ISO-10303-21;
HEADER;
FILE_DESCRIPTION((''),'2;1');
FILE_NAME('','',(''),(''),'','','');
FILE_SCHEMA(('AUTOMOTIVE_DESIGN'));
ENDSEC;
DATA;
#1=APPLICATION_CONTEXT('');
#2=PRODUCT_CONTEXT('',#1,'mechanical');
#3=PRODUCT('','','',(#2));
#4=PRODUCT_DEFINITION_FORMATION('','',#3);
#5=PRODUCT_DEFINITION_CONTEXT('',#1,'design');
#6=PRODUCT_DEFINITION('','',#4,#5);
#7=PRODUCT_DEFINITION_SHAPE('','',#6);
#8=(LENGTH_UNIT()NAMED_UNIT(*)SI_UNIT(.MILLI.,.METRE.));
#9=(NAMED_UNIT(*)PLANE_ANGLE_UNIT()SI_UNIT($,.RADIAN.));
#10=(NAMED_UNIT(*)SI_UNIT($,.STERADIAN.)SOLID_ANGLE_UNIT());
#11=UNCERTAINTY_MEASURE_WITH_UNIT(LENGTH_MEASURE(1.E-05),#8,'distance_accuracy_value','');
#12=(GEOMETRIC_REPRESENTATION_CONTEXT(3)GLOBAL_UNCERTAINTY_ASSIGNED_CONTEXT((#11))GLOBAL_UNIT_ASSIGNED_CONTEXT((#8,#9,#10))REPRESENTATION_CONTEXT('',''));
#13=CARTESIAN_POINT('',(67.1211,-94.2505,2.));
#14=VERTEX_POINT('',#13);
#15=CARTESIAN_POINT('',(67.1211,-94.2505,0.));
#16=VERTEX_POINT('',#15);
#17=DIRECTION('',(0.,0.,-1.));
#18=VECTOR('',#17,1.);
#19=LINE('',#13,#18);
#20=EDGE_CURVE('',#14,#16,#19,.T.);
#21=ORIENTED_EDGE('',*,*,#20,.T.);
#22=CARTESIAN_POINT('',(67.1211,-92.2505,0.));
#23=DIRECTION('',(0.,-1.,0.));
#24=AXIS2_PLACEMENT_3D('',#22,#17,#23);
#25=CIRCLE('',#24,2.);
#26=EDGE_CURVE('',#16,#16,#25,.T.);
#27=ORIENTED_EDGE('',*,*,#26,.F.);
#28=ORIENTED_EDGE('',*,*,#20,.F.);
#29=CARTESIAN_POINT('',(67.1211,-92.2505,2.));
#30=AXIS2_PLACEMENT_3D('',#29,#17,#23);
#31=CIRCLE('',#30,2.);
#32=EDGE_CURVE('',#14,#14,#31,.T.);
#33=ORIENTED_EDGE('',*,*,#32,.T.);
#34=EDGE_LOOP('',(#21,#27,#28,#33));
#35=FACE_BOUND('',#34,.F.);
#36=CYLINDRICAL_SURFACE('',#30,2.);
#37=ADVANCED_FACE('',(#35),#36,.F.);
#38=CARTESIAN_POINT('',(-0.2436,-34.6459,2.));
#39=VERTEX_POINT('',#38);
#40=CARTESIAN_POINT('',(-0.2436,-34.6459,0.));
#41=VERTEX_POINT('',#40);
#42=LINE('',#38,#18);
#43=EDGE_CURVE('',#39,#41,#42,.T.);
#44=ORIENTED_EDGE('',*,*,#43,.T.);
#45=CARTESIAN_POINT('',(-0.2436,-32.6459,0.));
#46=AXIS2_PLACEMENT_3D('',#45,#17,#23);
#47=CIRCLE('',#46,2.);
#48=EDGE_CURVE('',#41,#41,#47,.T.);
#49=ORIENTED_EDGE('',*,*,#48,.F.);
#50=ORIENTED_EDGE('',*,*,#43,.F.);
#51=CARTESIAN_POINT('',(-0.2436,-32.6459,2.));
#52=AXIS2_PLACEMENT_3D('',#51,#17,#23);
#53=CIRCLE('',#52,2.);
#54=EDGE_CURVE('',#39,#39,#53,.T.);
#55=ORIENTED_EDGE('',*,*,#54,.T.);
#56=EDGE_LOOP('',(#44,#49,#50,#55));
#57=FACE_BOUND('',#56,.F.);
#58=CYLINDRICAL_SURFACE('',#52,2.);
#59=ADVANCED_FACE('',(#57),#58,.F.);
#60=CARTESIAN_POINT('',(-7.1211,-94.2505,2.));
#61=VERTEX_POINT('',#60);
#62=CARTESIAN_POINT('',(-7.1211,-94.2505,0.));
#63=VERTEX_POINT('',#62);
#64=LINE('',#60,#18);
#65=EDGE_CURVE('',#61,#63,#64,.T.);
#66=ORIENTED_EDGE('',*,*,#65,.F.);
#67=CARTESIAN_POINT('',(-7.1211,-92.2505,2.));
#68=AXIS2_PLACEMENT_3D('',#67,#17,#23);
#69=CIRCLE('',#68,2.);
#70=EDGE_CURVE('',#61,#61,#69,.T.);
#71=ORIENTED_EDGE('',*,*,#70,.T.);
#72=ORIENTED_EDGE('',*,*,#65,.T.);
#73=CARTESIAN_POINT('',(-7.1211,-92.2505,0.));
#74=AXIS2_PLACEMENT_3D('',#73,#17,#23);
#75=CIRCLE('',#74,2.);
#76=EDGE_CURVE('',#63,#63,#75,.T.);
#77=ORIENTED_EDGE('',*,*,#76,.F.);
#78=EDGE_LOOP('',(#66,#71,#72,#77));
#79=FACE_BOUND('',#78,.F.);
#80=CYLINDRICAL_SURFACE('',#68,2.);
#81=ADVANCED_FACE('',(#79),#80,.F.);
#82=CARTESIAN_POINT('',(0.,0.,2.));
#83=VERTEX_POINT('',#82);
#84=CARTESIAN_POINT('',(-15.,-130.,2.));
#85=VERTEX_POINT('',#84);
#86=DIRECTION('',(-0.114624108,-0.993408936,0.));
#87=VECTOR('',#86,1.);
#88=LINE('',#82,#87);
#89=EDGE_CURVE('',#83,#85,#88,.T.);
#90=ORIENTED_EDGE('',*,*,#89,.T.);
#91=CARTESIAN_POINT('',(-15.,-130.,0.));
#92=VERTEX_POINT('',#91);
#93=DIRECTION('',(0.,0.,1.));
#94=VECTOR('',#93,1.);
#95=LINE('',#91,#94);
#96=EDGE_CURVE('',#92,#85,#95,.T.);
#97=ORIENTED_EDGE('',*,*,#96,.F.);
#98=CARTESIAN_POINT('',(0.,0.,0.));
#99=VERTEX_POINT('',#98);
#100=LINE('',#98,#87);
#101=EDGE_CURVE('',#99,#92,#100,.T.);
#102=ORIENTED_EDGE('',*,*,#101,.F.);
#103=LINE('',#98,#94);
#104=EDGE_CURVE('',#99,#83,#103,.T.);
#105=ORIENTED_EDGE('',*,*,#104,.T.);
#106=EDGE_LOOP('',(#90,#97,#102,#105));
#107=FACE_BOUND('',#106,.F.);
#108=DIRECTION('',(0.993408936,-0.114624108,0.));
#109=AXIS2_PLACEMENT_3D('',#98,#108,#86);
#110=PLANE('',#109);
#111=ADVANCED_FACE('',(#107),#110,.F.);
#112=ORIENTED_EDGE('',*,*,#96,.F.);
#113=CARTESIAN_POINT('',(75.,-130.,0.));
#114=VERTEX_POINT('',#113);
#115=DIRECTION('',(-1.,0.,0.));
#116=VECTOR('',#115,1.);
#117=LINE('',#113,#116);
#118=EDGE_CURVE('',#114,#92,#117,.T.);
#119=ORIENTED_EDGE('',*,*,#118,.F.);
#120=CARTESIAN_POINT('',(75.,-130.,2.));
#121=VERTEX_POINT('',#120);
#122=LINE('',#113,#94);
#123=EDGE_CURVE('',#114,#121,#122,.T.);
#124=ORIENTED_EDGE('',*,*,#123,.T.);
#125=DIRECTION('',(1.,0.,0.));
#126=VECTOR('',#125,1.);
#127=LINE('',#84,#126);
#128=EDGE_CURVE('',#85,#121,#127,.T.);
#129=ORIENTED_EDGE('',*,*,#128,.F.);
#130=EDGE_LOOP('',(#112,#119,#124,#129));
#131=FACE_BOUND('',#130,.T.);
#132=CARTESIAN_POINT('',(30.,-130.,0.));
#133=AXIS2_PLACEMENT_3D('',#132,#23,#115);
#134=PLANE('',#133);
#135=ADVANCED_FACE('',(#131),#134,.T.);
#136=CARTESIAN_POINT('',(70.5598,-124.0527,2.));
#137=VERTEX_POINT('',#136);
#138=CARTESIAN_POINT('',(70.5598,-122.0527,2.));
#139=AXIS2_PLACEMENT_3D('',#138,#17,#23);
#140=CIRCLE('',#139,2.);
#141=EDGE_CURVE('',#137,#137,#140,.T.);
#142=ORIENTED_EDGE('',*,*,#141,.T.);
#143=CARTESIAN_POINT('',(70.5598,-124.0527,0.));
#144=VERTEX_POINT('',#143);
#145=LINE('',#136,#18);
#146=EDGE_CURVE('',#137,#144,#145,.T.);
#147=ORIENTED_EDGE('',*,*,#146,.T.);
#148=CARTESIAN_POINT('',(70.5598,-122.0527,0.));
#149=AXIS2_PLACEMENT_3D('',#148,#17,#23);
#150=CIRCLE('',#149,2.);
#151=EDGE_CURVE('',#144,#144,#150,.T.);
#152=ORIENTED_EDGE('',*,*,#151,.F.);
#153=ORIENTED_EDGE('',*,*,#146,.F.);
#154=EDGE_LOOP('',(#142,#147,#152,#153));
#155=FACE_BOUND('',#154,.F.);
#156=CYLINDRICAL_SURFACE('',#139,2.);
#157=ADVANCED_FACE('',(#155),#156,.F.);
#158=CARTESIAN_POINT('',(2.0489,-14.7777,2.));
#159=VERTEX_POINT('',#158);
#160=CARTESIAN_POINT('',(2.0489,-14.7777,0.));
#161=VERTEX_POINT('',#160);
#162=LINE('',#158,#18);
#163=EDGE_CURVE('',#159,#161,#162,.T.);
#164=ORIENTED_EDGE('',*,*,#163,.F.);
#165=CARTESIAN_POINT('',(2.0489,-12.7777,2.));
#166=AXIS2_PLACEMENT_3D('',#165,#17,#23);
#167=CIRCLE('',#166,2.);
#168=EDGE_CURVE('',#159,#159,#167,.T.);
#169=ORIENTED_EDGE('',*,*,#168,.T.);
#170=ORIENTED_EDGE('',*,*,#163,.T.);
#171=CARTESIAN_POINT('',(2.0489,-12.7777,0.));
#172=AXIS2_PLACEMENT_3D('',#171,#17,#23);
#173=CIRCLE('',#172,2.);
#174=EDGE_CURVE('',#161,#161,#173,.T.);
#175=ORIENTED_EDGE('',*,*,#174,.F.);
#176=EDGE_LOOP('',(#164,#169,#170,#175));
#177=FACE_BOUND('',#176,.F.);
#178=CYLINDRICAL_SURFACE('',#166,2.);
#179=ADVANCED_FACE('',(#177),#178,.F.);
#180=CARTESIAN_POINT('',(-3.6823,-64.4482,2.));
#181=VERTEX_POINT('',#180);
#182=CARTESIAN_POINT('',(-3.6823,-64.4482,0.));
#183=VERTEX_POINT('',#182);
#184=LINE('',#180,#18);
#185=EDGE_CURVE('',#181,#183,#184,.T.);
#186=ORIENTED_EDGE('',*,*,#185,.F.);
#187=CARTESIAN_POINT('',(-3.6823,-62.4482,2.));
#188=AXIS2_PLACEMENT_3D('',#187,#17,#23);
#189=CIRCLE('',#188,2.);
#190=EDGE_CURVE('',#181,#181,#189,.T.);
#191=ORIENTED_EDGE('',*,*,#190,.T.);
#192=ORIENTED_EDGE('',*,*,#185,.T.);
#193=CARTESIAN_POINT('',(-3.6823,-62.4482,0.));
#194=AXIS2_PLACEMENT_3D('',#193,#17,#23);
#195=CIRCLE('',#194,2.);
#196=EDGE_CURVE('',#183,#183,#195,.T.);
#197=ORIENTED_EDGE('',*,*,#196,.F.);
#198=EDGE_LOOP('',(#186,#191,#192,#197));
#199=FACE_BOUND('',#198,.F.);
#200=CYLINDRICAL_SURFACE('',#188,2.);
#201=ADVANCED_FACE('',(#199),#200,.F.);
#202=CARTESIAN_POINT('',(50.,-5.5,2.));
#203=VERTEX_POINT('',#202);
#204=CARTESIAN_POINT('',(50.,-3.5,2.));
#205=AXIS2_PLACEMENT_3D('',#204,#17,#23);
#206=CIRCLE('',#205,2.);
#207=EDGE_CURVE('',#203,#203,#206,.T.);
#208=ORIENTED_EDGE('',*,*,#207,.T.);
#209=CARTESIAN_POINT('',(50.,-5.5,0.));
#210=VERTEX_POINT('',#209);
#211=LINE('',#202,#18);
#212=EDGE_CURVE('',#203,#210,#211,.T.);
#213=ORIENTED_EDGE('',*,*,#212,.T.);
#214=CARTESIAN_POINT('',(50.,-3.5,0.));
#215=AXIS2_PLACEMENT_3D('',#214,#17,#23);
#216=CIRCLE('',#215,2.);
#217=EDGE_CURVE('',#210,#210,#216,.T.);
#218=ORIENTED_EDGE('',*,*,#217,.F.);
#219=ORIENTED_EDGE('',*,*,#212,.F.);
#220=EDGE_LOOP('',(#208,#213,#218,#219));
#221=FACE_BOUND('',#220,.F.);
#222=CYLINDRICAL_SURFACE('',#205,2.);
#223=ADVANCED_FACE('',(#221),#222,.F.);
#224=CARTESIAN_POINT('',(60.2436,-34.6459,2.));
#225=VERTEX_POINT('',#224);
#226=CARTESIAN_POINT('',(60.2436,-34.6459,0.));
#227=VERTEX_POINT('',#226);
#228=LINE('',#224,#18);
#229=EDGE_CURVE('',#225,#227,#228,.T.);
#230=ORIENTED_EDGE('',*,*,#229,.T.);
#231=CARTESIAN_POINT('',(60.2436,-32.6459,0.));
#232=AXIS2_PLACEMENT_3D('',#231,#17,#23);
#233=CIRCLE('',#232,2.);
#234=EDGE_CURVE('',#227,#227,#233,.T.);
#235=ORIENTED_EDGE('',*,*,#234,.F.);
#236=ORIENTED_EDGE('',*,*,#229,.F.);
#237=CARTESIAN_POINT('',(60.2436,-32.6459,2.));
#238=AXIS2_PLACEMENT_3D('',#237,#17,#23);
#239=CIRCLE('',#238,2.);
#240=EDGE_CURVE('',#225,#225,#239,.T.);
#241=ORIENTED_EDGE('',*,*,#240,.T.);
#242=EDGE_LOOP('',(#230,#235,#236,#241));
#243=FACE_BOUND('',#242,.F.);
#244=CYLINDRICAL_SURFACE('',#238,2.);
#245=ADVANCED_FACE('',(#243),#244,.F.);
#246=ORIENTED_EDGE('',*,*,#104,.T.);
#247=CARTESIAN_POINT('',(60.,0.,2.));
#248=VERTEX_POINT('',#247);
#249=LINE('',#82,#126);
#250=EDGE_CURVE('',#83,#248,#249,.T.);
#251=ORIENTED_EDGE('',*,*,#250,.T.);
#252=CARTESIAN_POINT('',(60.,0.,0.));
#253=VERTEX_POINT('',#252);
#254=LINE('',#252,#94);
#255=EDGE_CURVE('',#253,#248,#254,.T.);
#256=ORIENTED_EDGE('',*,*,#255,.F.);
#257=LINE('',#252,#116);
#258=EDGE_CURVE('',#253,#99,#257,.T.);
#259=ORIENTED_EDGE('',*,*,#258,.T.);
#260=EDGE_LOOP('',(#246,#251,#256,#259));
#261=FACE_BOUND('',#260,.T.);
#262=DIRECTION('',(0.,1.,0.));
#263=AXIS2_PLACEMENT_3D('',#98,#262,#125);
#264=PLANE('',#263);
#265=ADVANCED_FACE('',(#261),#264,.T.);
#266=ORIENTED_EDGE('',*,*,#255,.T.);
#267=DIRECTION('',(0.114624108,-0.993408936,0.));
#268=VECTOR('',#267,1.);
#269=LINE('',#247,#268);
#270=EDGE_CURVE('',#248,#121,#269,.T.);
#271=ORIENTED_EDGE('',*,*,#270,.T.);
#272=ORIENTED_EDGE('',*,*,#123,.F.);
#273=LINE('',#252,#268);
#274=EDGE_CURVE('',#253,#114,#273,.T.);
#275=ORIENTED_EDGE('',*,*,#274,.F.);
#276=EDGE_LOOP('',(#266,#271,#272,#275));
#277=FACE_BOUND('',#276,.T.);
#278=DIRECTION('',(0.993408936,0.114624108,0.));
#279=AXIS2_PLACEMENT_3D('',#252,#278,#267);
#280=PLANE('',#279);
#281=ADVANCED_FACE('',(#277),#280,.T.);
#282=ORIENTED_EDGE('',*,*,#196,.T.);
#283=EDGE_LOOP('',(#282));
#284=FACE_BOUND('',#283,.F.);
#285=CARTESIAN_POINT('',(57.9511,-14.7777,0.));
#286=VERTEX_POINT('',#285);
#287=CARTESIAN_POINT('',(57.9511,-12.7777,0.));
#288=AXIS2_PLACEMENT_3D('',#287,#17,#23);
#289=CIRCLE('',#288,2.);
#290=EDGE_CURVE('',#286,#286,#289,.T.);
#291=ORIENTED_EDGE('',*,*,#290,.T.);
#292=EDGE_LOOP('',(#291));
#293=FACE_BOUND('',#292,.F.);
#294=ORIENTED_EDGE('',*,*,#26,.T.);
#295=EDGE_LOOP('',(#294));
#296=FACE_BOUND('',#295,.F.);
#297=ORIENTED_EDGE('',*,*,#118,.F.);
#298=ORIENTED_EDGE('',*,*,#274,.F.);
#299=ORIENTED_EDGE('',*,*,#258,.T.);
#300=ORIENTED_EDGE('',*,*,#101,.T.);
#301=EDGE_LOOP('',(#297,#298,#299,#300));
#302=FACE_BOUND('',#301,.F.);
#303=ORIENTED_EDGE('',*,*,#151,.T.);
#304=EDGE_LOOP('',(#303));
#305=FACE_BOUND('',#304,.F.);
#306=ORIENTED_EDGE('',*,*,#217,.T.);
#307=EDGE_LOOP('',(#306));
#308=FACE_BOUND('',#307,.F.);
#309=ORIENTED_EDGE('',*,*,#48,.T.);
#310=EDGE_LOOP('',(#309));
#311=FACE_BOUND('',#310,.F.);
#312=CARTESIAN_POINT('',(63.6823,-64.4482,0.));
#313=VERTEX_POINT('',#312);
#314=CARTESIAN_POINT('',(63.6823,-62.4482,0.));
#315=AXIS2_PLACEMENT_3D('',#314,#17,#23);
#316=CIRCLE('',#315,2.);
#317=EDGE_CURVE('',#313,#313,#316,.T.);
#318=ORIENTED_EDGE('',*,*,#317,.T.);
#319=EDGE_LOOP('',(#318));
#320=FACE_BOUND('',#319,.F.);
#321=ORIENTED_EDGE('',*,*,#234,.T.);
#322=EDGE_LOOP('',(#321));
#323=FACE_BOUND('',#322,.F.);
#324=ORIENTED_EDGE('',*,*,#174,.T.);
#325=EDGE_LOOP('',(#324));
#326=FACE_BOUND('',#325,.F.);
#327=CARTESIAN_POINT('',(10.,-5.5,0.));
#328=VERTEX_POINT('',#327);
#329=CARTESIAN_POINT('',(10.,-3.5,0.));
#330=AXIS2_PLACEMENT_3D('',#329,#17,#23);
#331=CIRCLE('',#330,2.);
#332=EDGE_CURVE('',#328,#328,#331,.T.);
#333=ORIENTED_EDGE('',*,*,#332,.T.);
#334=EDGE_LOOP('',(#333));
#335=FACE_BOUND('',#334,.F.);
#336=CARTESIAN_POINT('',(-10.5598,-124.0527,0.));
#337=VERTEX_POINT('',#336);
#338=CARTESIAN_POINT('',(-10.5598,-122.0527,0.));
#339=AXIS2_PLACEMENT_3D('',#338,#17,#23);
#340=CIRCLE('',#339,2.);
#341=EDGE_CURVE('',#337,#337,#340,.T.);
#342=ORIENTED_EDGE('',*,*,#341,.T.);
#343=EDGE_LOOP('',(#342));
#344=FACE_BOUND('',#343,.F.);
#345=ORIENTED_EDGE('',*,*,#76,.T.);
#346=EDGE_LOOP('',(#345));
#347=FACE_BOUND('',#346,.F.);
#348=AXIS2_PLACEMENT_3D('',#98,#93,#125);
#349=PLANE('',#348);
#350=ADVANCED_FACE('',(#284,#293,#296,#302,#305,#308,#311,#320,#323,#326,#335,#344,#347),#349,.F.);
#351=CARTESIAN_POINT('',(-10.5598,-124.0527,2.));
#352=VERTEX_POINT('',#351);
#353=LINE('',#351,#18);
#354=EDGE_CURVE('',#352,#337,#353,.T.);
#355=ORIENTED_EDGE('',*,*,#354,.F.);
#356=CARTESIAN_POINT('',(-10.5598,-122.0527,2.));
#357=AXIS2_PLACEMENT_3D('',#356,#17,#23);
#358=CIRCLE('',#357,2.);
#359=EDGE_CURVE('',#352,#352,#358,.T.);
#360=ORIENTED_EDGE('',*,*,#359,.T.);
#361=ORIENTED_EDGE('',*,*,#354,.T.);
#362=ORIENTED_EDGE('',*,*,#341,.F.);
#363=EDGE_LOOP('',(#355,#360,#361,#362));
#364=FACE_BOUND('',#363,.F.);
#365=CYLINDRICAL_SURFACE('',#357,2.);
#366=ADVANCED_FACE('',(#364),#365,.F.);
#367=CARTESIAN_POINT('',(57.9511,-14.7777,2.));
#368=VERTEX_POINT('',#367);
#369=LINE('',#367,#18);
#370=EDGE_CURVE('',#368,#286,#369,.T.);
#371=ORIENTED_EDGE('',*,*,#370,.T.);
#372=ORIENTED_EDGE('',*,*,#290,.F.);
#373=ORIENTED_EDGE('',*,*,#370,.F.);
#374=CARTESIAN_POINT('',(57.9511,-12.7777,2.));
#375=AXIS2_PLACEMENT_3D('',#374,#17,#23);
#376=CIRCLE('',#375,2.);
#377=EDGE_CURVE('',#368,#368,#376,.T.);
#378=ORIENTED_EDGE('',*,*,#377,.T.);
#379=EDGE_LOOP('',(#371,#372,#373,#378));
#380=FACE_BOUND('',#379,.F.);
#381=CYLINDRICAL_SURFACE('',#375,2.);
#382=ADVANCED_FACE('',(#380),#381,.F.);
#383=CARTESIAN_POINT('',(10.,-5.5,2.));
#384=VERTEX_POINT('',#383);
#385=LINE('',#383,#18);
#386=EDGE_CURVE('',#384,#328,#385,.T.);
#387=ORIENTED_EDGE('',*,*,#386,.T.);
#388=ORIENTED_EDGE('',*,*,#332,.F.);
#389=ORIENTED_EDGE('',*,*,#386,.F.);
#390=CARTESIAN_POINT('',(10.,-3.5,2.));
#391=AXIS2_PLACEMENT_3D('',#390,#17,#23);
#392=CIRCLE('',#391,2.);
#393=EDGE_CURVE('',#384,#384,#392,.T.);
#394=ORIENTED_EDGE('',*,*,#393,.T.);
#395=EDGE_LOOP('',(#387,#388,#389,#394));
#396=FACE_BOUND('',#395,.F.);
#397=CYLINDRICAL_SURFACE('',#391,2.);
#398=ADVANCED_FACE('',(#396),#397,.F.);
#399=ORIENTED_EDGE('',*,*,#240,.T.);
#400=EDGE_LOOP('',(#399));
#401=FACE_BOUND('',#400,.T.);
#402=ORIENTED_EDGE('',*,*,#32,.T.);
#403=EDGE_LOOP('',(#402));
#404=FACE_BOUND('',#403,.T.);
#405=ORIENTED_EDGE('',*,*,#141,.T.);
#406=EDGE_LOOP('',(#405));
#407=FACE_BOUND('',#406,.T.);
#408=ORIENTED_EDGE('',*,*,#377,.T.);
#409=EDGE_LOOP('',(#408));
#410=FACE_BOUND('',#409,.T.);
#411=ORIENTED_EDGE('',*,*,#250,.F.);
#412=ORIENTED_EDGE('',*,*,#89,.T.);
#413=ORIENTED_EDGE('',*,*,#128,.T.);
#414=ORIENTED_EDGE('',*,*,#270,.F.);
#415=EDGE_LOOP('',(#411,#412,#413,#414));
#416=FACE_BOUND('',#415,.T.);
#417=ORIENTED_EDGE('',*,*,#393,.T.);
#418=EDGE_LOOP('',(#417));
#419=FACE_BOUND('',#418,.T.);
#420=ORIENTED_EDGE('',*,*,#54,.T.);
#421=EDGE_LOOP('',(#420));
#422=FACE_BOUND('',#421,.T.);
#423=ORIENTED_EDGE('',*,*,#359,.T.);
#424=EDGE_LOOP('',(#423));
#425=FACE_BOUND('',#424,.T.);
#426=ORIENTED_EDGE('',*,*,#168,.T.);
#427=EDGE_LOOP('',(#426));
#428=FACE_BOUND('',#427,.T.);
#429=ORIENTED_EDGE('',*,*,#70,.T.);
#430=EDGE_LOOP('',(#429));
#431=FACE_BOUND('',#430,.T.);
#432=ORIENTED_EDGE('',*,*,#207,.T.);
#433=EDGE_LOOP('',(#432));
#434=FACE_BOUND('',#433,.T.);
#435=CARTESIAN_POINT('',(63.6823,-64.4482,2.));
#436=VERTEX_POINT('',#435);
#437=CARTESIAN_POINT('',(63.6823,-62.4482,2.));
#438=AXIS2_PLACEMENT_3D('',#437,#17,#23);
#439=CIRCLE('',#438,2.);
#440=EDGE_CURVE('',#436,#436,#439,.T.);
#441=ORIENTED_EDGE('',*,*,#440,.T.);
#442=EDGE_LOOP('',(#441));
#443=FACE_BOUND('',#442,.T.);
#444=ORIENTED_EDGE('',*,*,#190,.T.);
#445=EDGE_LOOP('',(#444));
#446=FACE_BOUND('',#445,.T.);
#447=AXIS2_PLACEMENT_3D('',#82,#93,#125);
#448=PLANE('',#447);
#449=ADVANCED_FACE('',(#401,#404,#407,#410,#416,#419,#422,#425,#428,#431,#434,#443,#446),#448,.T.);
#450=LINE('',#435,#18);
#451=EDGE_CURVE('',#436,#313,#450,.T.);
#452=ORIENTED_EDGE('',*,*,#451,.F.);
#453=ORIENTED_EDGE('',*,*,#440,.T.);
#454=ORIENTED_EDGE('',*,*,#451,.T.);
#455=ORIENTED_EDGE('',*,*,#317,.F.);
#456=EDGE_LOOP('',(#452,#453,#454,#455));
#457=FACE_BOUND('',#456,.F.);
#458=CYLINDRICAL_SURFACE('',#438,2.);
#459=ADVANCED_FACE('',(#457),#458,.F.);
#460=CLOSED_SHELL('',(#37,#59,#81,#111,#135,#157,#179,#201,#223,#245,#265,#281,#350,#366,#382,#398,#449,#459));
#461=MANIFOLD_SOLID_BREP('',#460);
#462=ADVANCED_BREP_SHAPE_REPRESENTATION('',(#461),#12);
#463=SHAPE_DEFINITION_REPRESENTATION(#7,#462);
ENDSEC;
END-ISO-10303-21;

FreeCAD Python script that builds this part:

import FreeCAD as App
import Part
import Sketcher
Q = App.Units.Quantity

doc = App.newDocument("Part")
body = doc.addObject("PartDesign::Body", "Body")

# Sketch on XY plane
sketch1 = body.newObject("Sketcher::SketchObject", "Sketch")
sketch1.AttachmentSupport = (doc.getObject("XY_Plane"), [""])
sketch1.MapMode = "FlatFace"
sketch1.addGeometry([
    Part.LineSegment(App.Vector(0, 0, 0), App.Vector(-15, -130, 0)),
    Part.LineSegment(App.Vector(-15, -130, 0), App.Vector(75, -130, 0)),
    Part.LineSegment(App.Vector(75, -130, 0), App.Vector(60, 0, 0)),
    Part.LineSegment(App.Vector(60, 0, 0), App.Vector(0, 0, 0)),
], False)
sketch1.addConstraint([
    Sketcher.Constraint("Coincident", 0, 2, 1, 1),
    Sketcher.Constraint("Coincident", 1, 2, 2, 1),
    Sketcher.Constraint("Coincident", 2, 2, 3, 1),
    Sketcher.Constraint("Coincident", 3, 2, 0, 1),
    Sketcher.Constraint("Horizontal", 1),
    Sketcher.Constraint("Horizontal", 3),
    Sketcher.Constraint("Coincident", 3, 2, -1, 1),
    Sketcher.Constraint("Equal", 0, 2),
    Sketcher.Constraint("DistanceX", 3, 2, 3, 1, Q("60 mm")),
    Sketcher.Constraint("DistanceY", 0, 2, -1, 1, Q("130 mm")),
    Sketcher.Constraint("DistanceX", 1, 1, 1, 2, Q("90 mm")),
])
pad1 = body.newObject("PartDesign::Pad", "Pad")
pad1.Profile = sketch1
pad1.Length = 2

# Sketch on XY plane
sketch2 = body.newObject("Sketcher::SketchObject", "Sketch001")
sketch2.AttachmentSupport = (doc.getObject("XY_Plane"), [""])
sketch2.MapMode = "FlatFace"
sketch2.AttachmentOffset = App.Placement(App.Vector(0, 0, 2), App.Rotation())
sketch2.addGeometry([
    Part.Circle(App.Vector(10, -3.5, 0), App.Vector(0, 0, 1), 2),  # 0
    Part.Circle(App.Vector(2, -12.8, 0), App.Vector(0, 0, 1), 2),  # 1
    Part.Circle(App.Vector(-0.2, -32.6, 0), App.Vector(0, 0, 1), 2),  # 2
    Part.Circle(App.Vector(-3.7, -62.4, 0), App.Vector(0, 0, 1), 2),  # 3
    Part.Circle(App.Vector(-7.1, -92.3, 0), App.Vector(0, 0, 1), 2),  # 4
    Part.Circle(App.Vector(-10.6, -122.1, 0), App.Vector(0, 0, 1), 2),  # 5
    Part.Circle(App.Vector(50, -3.5, 0), App.Vector(0, 0, 1), 2),  # 6
    Part.Circle(App.Vector(58, -12.8, 0), App.Vector(0, 0, 1), 2),  # 7
    Part.Circle(App.Vector(63.7, -62.4, 0), App.Vector(0, 0, 1), 2),  # 8
    Part.Circle(App.Vector(67.1, -92.3, 0), App.Vector(0, 0, 1), 2),  # 9
    Part.Circle(App.Vector(70.6, -122.1, 0), App.Vector(0, 0, 1), 2),  # 10
    Part.Circle(App.Vector(60.2, -32.6, 0), App.Vector(0, 0, 1), 2),  # 11
], False)
sketch2.addConstraint([
    Sketcher.Constraint("Equal", 0, 1),
    Sketcher.Constraint("Equal", 1, 2),
    Sketcher.Constraint("Equal", 2, 3),
    Sketcher.Constraint("Equal", 3, 4),
    Sketcher.Constraint("Equal", 4, 5),
    Sketcher.Constraint("Equal", 5, 6),
    Sketcher.Constraint("Equal", 6, 7),
    Sketcher.Constraint("Equal", 7, 8),
    Sketcher.Constraint("Equal", 8, 9),
    Sketcher.Constraint("Equal", 9, 10),
    Sketcher.Constraint("Equal", 10, 11),
    Sketcher.Constraint("Horizontal", 0, 3, 6, 3),
    Sketcher.Constraint("Horizontal", 1, 3, 7, 3),
    Sketcher.Constraint("Horizontal", 3, 3, 8, 3),
    Sketcher.Constraint("Horizontal", 4, 3, 9, 3),
    Sketcher.Constraint("Horizontal", 5, 3, 10, 3),
    Sketcher.Constraint("Horizontal", 2, 3, 11, 3),
    Sketcher.Constraint("Diameter", 0, Q("4 mm")),
    Sketcher.Constraint("DistanceX", -1, 1, 0, 3, Q("10 mm")),
    Sketcher.Constraint("DistanceX", -1, 1, 6, 3, Q("50 mm")),
    Sketcher.Constraint("DistanceY", 0, 3, -1, 1, Q("3.5 mm")),
    Sketcher.Constraint("DistanceX", 4, 3, 1, 3, Q("9.17 mm")),
    Sketcher.Constraint("DistanceX", 7, 3, 9, 3, Q("9.17 mm")),
    Sketcher.Constraint("DistanceX", -1, 1, 1, 3, Q("2.049 mm")),
    Sketcher.Constraint("DistanceY", 2, 3, -1, 1, Q("32.646 mm")),
    Sketcher.Constraint("DistanceX", -1, 1, 7, 3, Q("57.951 mm")),
    Sketcher.Constraint("DistanceY", 5, 3, 1, 3, Q("109.275 mm")),
    Sketcher.Constraint("DistanceX", 2, 3, 8, 3, Q("63.926 mm")),
    Sketcher.Constraint("DistanceX", 5, 3, 9, 3, Q("77.681 mm")),
    Sketcher.Constraint("DistanceX", 4, 3, 10, 3, Q("77.681 mm")),
    Sketcher.Constraint("DistanceX", 3, 3, 10, 3, Q("74.242 mm")),
    Sketcher.Constraint("DistanceY", 1, 3, -1, 1, Q("12.7777 mm")),
    Sketcher.Constraint("DistanceX", 2, 3, -1, 1, Q("0.2436 mm")),
    Sketcher.Constraint("DistanceY", 3, 3, -1, 1, Q("62.4482 mm")),
    Sketcher.Constraint("DistanceY", 4, 3, -1, 1, Q("92.2505 mm")),
    Sketcher.Constraint("DistanceX", -1, 1, 11, 3, Q("60.2436 mm")),
])
doc.recompute()
hole = body.newObject("PartDesign::Hole", "Hole")
hole.Profile = sketch2
hole.ThreadType = "None"
hole.Diameter = 4
hole.DepthType = "Dimension"
hole.Depth = 50
hole.DrillPoint = "Flat"

doc.recompute()
